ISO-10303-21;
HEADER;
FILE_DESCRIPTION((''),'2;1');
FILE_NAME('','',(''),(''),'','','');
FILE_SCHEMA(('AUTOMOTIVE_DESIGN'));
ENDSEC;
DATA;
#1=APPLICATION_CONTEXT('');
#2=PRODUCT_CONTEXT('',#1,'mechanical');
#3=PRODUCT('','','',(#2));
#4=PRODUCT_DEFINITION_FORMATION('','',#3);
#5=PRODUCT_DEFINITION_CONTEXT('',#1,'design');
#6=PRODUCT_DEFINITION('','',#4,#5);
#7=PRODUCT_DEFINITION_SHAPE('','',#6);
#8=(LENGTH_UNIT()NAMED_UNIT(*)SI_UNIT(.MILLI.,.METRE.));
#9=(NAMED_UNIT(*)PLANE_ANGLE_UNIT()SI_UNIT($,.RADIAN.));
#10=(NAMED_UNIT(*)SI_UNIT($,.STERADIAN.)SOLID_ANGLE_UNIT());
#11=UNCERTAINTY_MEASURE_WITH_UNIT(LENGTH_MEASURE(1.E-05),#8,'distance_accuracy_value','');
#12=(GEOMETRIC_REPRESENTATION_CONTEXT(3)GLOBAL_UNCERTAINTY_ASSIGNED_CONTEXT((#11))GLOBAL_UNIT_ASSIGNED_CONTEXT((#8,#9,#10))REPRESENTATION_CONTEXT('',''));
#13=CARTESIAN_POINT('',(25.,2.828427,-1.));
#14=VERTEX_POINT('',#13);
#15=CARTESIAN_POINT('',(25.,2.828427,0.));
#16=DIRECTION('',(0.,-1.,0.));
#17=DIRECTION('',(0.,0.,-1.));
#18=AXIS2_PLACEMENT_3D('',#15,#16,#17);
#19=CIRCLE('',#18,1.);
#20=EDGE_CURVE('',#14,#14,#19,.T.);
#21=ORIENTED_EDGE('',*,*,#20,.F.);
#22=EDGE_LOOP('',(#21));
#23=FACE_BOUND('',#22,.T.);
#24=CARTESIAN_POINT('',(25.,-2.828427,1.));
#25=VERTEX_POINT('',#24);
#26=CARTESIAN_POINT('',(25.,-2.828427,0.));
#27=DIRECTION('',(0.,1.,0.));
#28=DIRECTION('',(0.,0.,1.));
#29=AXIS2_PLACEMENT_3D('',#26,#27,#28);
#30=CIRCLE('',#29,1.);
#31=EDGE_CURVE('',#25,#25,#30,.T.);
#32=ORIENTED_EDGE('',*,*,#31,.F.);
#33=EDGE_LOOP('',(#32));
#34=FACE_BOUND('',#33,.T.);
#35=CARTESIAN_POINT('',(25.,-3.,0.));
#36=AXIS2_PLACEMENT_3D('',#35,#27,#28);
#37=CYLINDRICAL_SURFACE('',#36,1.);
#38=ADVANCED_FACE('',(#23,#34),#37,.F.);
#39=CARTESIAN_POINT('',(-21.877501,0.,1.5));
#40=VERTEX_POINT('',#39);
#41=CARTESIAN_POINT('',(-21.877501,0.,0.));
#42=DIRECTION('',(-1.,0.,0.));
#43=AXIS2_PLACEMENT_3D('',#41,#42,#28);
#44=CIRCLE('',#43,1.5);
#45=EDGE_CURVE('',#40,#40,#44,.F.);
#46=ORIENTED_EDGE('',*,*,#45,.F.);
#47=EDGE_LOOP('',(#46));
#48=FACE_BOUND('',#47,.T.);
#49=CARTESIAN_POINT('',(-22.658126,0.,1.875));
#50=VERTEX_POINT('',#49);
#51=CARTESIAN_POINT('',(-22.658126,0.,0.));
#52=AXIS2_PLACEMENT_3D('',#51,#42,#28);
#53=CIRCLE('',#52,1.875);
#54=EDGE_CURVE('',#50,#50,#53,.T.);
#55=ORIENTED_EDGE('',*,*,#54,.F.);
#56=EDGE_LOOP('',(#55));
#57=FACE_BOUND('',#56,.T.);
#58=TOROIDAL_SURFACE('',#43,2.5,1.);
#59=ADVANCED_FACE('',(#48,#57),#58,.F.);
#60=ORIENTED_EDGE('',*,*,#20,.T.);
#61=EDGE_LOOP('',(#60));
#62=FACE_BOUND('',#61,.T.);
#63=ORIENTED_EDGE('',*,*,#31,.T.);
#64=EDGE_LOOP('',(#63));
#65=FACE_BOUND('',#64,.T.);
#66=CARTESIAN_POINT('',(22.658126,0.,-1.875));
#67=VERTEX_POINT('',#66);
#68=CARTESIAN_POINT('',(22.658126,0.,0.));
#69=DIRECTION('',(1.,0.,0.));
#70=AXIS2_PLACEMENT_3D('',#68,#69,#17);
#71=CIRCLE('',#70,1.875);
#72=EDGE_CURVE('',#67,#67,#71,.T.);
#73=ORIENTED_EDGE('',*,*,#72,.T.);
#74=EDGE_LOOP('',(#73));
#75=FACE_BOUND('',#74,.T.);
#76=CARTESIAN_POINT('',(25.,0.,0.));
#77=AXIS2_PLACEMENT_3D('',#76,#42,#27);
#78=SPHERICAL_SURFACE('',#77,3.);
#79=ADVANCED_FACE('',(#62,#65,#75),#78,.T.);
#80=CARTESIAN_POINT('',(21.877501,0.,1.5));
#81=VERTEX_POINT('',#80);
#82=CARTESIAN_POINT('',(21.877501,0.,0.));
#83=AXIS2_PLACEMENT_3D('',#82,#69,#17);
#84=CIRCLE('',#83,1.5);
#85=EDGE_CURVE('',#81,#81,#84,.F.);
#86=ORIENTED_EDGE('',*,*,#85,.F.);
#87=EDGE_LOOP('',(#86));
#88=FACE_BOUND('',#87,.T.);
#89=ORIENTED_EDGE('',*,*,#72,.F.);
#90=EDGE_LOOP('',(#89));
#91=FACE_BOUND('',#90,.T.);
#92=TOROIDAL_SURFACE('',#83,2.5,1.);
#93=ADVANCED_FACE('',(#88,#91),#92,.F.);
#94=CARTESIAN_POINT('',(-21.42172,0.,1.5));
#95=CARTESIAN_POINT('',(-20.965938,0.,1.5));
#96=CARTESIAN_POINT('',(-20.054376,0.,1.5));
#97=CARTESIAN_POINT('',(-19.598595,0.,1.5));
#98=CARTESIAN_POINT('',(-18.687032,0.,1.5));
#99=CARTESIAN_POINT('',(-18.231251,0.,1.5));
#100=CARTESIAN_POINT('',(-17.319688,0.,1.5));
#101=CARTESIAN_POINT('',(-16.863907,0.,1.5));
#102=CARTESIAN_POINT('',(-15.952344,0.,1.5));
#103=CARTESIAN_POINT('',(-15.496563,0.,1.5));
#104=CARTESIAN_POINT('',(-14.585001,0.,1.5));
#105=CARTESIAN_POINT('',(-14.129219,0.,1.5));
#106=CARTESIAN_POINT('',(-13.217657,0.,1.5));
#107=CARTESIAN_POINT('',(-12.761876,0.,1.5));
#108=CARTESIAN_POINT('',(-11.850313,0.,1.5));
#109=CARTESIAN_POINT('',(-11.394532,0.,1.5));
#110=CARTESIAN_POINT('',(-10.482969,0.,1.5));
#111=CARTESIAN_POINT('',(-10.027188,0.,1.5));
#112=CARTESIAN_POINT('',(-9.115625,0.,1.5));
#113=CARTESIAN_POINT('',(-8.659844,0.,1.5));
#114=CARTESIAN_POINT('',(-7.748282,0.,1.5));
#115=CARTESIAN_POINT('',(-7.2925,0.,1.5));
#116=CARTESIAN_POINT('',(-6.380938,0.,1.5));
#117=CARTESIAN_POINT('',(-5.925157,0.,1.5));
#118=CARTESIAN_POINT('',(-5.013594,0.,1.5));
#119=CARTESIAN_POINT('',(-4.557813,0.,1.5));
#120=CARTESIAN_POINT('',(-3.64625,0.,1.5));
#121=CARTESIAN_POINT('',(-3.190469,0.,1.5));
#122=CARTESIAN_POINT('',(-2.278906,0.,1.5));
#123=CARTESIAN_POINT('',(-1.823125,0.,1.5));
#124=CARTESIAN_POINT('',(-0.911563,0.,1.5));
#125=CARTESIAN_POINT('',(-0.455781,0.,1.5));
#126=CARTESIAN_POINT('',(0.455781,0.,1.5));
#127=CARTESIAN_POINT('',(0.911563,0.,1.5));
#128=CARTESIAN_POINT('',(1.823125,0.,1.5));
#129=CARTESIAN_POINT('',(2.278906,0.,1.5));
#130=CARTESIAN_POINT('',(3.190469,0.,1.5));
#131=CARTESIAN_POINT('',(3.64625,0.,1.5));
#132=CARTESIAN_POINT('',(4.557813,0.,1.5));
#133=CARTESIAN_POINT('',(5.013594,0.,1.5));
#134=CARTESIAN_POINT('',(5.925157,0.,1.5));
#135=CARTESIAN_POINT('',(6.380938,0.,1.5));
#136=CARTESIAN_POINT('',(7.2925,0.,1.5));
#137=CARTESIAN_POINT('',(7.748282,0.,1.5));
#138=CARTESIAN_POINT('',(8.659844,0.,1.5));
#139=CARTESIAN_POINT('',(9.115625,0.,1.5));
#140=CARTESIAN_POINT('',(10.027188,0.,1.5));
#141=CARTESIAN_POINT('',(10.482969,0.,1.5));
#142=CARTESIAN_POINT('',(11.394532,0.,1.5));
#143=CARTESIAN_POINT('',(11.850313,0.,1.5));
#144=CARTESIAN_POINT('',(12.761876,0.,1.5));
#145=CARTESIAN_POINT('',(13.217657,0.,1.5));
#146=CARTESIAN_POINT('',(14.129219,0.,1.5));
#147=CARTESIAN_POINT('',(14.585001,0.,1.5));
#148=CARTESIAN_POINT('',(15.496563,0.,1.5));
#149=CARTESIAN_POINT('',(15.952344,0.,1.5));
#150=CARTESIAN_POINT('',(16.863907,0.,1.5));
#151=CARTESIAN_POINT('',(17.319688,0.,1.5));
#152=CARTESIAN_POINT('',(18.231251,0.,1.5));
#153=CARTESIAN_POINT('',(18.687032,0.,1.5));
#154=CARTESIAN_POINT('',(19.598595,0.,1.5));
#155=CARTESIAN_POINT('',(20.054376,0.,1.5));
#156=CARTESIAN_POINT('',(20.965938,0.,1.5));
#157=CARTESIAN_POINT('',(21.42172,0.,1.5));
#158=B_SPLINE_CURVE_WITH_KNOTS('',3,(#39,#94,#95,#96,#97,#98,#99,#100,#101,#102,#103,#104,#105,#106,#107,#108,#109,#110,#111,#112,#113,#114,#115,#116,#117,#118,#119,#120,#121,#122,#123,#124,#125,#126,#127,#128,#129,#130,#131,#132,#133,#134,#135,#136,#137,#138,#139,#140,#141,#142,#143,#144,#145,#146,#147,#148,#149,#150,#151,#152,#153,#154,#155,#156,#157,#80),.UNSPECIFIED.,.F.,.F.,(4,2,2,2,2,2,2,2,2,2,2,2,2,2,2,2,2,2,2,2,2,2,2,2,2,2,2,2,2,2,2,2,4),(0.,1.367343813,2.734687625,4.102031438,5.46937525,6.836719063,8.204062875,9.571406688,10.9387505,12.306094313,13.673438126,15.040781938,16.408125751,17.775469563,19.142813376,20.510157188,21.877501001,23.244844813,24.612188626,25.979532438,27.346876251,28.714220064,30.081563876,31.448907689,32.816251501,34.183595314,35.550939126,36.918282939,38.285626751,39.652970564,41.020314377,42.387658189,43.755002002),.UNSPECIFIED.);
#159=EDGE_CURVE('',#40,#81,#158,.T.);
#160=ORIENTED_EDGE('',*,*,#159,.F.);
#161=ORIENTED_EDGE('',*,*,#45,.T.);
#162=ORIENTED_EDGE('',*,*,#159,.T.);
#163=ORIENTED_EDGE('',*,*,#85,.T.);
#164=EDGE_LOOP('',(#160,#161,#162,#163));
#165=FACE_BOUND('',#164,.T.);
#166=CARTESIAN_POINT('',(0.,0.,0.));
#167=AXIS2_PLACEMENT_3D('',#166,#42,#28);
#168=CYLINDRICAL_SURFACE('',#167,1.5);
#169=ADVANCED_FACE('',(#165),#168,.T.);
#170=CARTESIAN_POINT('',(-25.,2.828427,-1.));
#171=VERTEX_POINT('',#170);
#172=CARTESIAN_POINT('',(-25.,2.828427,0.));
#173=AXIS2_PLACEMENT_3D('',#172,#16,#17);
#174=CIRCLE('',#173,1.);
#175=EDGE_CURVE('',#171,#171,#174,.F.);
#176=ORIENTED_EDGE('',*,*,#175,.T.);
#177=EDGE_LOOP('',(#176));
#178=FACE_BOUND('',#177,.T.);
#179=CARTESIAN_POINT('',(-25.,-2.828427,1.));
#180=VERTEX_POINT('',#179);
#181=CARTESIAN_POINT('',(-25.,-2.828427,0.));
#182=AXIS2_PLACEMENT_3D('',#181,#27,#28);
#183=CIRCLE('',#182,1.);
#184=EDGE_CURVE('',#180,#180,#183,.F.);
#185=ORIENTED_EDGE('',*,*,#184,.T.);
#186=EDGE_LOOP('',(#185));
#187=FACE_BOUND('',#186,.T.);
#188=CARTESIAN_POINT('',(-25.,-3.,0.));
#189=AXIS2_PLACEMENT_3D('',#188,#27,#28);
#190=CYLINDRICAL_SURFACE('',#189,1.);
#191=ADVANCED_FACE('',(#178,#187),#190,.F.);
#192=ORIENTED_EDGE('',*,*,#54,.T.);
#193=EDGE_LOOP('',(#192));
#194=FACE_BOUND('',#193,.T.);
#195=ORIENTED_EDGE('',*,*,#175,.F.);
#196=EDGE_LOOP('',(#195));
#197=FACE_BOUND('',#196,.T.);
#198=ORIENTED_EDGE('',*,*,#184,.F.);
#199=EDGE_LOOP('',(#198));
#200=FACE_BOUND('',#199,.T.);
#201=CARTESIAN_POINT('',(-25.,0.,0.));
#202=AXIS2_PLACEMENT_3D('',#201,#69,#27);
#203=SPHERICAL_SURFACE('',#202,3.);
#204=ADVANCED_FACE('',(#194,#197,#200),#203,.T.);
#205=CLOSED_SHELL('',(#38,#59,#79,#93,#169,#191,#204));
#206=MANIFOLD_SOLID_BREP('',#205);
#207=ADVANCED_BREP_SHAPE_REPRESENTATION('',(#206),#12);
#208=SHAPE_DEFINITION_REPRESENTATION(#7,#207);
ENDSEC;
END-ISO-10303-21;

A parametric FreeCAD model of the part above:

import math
import FreeCAD as App
import Part
import Sketcher

V = App.Vector


def edges_at(feature, points):
    """Names of the edges that pass closest to the given points."""
    edges = feature.Shape.Edges
    near = lambda p: min(range(len(edges)), key=lambda i: edges[i].distToShape(Part.Vertex(*p))[0])
    return sorted({f"Edge{near(p) + 1}" for p in points})

doc = App.newDocument("Part")
body = doc.addObject("PartDesign::Body", "Body")

# Sketch on XY plane
sketch1 = body.newObject("Sketcher::SketchObject", "Sketch")
sketch1.AttachmentSupport = (doc.getObject("XY_Plane"), [""])
sketch1.MapMode = "FlatFace"
sketch1.addGeometry(Part.ArcOfCircle(Part.Circle(V(25, 0, 0), V(0, 0, 1), 3), math.radians(0), math.radians(150)), False)
sketch1.addGeometry(Part.LineSegment(V(22.4, 1.5, 0), V(0, 1.5, 0)), False)
sketch1.addGeometry(Part.LineSegment(V(0, 1.5, 0), V(0, 0, 0)), False)
sketch1.addGeometry(Part.LineSegment(V(0, 0, 0), V(28, 0, 0)), False)
sketch1.addConstraint(Sketcher.Constraint("Coincident", 0, 2, 1, 1))
sketch1.addConstraint(Sketcher.Constraint("Coincident", 1, 2, 2, 1))
sketch1.addConstraint(Sketcher.Constraint("Coincident", 2, 2, 3, 1))
sketch1.addConstraint(Sketcher.Constraint("Coincident", 3, 2, 0, 1))
sketch1.addConstraint(Sketcher.Constraint("Horizontal", 1))
sketch1.addConstraint(Sketcher.Constraint("Vertical", 2))
sketch1.addConstraint(Sketcher.Constraint("Horizontal", 3))
sketch1.addConstraint(Sketcher.Constraint("Coincident", 2, 2, -1, 1))
sketch1.addConstraint(Sketcher.Constraint("PointOnObject", 0, 3, -1))
sketch1.addConstraint(Sketcher.Constraint("Radius", 0, 3.0))
sketch1.addConstraint(Sketcher.Constraint("DistanceX", 3, 1, 3, 2, 28.0))
sketch1.addConstraint(Sketcher.Constraint("DistanceY", 2, 2, 2, 1, 1.5))
revolution = body.newObject("PartDesign::Revolution", "Revolution")
revolution.Profile = sketch1
revolution.ReferenceAxis = (sketch1, ["H_Axis"])
revolution.Angle = 360

# Sketch on XZ plane
sketch2 = body.newObject("Sketcher::SketchObject", "Sketch001")
sketch2.AttachmentSupport = (doc.getObject("XZ_Plane"), [""])
sketch2.MapMode = "FlatFace"
sketch2.AttachmentOffset = App.Placement(V(0, 0, -3), App.Rotation())
sketch2.addGeometry(Part.Circle(V(25, 0, 0), V(0, 0, 1), 1), False)
sketch2.addConstraint(Sketcher.Constraint("PointOnObject", 0, 3, -1))
sketch2.addConstraint(Sketcher.Constraint("Diameter", 0, 2.0))
sketch2.addConstraint(Sketcher.Constraint("DistanceX", -1, 1, 0, 3, 25.0))
pocket1 = body.newObject("PartDesign::Pocket", "Pocket")
pocket1.Profile = sketch2
pocket1.Type = "ThroughAll"
pocket1.Reversed = True
doc.recompute()

mirrored = body.newObject("PartDesign::Mirrored", "Mirrored")
mirrored.Originals = [revolution, pocket1]
mirrored.MirrorPlane = (doc.getObject("YZ_Plane"), [""])
body.Tip = mirrored
doc.recompute()

fillet = body.newObject("PartDesign::Fillet", "Fillet")
fillet.Base = (mirrored, edges_at(mirrored, [(22.402, 0, -1.5)]))
fillet.Radius = 1
doc.recompute()

fillet2 = body.newObject("PartDesign::Fillet", "Fillet001")
fillet2.Base = (fillet, edges_at(fillet, [(-22.402, 0, -1.5)]))
fillet2.Radius = 1

doc.recompute()
